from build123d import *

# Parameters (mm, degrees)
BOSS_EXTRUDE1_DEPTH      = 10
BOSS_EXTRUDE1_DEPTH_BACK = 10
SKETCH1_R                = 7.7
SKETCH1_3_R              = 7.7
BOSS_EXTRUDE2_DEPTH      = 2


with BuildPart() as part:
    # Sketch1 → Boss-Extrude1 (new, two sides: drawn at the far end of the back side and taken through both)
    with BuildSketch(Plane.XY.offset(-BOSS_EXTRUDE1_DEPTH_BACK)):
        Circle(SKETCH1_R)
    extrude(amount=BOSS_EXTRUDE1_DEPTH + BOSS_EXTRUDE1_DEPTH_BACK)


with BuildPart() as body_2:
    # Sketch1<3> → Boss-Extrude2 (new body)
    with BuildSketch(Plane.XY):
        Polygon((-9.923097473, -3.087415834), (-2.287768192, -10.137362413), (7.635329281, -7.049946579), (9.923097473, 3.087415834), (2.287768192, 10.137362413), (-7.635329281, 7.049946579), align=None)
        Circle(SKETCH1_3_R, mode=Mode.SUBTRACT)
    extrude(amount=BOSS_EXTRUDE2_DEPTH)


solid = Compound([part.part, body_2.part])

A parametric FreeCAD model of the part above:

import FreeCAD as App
import Part
import Sketcher

doc = App.newDocument("Part")
body = doc.addObject("PartDesign::Body", "Body")

sketch1 = body.newObject("Sketcher::SketchObject", "Sketch")
sketch1.AttachmentSupport = (doc.getObject("XY_Plane"), [""])
sketch1.MapMode = "FlatFace"
sketch1.addGeometry(Part.Circle(App.Vector(0, 0, 0), App.Vector(0, 0, 1), 8), False)
sketch1.addConstraint(Sketcher.Constraint("Coincident", 0, 3, -1, 1))
sketch1.addConstraint(Sketcher.Constraint("Diameter", 0, 15.4))
pad1 = body.newObject("PartDesign::Pad", "Pad")
pad1.Profile = sketch1
pad1.Type = "TwoLengths"
pad1.Length = 10
pad1.Length2 = 10
body2 = doc.addObject("PartDesign::Body", "Body001")

sketch2 = body2.newObject("Sketcher::SketchObject", "Sketch001")
sketch2.AttachmentSupport = (doc.getObject("XY_Plane001"), [""])
sketch2.MapMode = "FlatFace"
sketch2.addGeometry(Part.LineSegment(App.Vector(-10, -3, 0), App.Vector(-2, -10, 0)), False)
sketch2.addGeometry(Part.LineSegment(App.Vector(-2, -10, 0), App.Vector(8, -7, 0)), False)
sketch2.addGeometry(Part.LineSegment(App.Vector(8, -7, 0), App.Vector(10, 3, 0)), False)
sketch2.addGeometry(Part.LineSegment(App.Vector(10, 3, 0), App.Vector(2, 10, 0)), False)
sketch2.addGeometry(Part.LineSegment(App.Vector(2, 10, 0), App.Vector(-8, 7, 0)), False)
sketch2.addGeometry(Part.LineSegment(App.Vector(-8, 7, 0), App.Vector(-10, -3, 0)), False)
sketch2.addGeometry(Part.Circle(App.Vector(0, 0, 0), App.Vector(0, 0, 1), 8), False)
sketch2.addConstraint(Sketcher.Constraint("Coincident", 0, 2, 1, 1))
sketch2.addConstraint(Sketcher.Constraint("Coincident", 1, 2, 2, 1))
sketch2.addConstraint(Sketcher.Constraint("Coincident", 2, 2, 3, 1))
sketch2.addConstraint(Sketcher.Constraint("Coincident", 3, 2, 4, 1))
sketch2.addConstraint(Sketcher.Constraint("Coincident", 4, 2, 5, 1))
sketch2.addConstraint(Sketcher.Constraint("Coincident", 5, 2, 0, 1))
sketch2.addConstraint(Sketcher.Constraint("Coincident", 6, 3, -1, 1))
sketch2.addConstraint(Sketcher.Constraint("Symmetric", 0, 2, 3, 2, -1, 1))
sketch2.addConstraint(Sketcher.Constraint("Symmetric", 1, 2, 4, 2, -1, 1))
sketch2.addConstraint(Sketcher.Constraint("Symmetric", 2, 2, 5, 2, -1, 1))
sketch2.addConstraint(Sketcher.Constraint("Equal", 0, 1))
sketch2.addConstraint(Sketcher.Constraint("Equal", 1, 2))
sketch2.addConstraint(Sketcher.Constraint("Diameter", 6, 15.4))
sketch2.addConstraint(Sketcher.Constraint("DistanceX", 0, 2, -1, 1, 2.287768))
sketch2.addConstraint(Sketcher.Constraint("DistanceX", -1, 1, 1, 2, 7.635329))
sketch2.addConstraint(Sketcher.Constraint("DistanceX", 1, 2, 2, 2, 2.287768))
sketch2.addConstraint(Sketcher.Constraint("DistanceY", 0, 2, 2, 2, 13.224778))
pad2 = body2.newObject("PartDesign::Pad", "Pad001")
pad2.Profile = sketch2
pad2.Length = 2

doc.recompute()
